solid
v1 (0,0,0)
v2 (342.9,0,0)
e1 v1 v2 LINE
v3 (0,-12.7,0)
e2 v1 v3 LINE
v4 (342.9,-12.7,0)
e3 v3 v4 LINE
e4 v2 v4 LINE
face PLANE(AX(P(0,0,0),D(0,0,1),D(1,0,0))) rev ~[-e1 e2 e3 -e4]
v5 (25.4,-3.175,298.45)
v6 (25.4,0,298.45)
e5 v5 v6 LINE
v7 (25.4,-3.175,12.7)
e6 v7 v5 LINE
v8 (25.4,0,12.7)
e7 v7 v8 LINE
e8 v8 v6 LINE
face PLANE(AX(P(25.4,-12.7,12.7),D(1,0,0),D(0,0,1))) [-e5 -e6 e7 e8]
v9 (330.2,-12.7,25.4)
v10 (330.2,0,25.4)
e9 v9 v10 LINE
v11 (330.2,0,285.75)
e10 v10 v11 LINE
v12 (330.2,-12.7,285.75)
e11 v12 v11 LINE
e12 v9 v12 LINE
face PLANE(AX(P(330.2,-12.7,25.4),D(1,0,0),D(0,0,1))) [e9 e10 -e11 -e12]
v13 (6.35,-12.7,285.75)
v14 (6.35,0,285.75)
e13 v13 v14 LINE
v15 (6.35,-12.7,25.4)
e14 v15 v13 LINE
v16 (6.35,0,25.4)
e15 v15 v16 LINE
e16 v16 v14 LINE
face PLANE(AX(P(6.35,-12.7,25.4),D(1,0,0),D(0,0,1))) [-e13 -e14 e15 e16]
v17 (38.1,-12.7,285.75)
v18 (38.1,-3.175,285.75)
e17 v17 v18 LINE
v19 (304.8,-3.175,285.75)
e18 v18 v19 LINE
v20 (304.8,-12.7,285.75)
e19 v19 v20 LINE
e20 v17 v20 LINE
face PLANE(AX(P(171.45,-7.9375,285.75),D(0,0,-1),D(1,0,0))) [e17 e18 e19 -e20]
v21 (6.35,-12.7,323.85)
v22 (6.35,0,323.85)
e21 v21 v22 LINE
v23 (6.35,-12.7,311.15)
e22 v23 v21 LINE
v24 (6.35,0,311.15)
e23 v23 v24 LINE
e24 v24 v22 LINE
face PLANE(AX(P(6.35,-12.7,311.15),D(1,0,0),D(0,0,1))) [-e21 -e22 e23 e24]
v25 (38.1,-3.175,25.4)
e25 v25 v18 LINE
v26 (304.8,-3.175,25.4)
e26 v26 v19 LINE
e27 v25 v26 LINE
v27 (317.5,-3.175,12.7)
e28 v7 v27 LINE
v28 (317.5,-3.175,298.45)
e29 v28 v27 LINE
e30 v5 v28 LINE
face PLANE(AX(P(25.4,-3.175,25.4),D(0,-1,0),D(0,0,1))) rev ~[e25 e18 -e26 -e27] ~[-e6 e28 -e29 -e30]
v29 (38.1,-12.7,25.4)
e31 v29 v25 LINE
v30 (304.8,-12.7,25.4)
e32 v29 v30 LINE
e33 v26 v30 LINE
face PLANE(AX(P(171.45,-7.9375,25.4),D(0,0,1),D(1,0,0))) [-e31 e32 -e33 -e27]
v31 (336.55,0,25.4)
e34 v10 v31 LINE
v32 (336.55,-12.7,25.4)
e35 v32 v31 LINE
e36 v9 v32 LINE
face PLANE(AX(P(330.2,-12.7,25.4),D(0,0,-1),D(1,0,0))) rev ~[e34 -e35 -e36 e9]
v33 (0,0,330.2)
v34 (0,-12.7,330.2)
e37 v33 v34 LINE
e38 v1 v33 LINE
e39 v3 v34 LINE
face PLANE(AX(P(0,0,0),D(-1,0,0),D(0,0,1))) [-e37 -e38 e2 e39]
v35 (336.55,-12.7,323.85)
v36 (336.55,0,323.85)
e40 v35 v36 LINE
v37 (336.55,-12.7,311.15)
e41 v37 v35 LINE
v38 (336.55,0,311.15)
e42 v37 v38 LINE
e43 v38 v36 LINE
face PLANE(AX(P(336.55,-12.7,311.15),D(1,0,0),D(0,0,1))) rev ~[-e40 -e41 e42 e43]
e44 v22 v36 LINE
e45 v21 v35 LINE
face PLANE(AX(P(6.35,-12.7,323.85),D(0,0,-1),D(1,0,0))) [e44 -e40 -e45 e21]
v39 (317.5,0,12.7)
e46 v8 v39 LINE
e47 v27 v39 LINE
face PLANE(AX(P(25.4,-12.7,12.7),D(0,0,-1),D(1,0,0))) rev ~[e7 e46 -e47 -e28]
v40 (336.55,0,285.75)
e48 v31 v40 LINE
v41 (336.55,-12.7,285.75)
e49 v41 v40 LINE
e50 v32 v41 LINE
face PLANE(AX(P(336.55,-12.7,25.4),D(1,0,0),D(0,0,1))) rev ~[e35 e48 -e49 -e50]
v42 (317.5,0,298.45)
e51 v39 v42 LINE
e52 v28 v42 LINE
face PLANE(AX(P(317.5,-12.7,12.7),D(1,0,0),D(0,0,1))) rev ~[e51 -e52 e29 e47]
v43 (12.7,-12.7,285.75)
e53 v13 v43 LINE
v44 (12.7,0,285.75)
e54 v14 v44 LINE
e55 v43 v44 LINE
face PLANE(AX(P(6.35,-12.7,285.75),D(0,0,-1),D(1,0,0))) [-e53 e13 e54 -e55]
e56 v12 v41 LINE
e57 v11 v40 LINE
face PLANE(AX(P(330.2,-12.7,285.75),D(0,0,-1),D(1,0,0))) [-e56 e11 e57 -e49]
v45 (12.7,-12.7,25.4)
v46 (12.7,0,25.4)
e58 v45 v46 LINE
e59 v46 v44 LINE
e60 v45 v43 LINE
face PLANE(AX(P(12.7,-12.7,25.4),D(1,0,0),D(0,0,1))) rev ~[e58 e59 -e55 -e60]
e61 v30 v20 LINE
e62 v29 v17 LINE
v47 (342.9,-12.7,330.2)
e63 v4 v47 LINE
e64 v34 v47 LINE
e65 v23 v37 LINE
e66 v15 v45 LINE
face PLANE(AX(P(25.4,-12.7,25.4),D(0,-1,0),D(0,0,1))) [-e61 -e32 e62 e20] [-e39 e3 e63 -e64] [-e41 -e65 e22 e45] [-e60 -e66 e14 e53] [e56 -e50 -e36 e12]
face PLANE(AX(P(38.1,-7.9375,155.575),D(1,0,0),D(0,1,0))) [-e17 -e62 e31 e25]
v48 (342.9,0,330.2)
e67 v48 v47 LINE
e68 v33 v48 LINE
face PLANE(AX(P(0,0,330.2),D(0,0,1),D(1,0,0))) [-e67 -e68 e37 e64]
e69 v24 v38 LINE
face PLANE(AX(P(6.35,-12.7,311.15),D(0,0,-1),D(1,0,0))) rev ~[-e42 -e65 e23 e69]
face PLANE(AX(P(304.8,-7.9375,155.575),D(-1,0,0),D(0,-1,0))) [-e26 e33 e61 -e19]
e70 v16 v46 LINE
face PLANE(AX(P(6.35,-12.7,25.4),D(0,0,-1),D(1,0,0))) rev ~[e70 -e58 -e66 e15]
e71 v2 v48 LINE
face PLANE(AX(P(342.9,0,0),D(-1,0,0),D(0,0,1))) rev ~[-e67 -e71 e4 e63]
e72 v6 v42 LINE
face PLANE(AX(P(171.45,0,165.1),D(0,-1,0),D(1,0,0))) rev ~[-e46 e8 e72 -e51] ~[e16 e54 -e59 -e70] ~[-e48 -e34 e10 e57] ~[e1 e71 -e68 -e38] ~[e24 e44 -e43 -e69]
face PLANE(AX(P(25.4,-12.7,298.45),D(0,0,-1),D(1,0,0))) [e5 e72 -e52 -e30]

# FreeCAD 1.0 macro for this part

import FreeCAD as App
import Part
import Sketcher

V = App.Vector
Q = App.Units.Quantity


def add_polygon(sketch, points):
    """Adds a closed chain of lines whose ends are joined by coincident constraints."""
    first, n = sketch.GeometryCount, len(points)
    for a, b in zip(points, points[1:] + points[:1]):
        sketch.addGeometry(Part.LineSegment(App.Vector(*a, 0), App.Vector(*b, 0)), False)
    for i in range(n):
        sketch.addConstraint(Sketcher.Constraint("Coincident", first + i, 2, first + (i + 1) % n, 1))

doc = App.newDocument("Part")
params = doc.addObject("Spreadsheet::Sheet", "Params")
for row, (alias, value) in enumerate([
    ("sketch1_height", "13 in"),
    ("sketch1_width", "13.5 in"),
    ("pad1_length", "0.5 in"),
    ("sketch2_width", "11.5 in"),
    ("sketch2_height", "11.25 in"),
    ("pocket1_length", "0.5 in"),
    ("sketch3_width", "13 in"),
    ("sketch3_height", "0.5 in"),
    ("sketch3_width2", "0.25 in"),
    ("sketch3_height2", "10.25 in"),
    ("pocket2_length", "0.5 in"),
    ("sketch4_width", "11.5 in"),
    ("sketch4_height", "0.375 in"),
    ("pad2_length", "0.5 in"),
    ("sketch5_width", "11.5 in"),
    ("sketch5_height", "0.375 in"),
    ("pad3_length", "0.5 in"),
    ("sketch6_height", "10.25 in"),
    ("sketch6_width", "0.375 in"),
    ("pad4_length", "0.5 in"),
    ("sketch7_height", "10.25 in"),
    ("sketch7_width", "0.375 in"),
    ("pad5_length", "0.5 in"),
], start=1):
    params.set(f"A{row}", alias)
    params.set(f"B{row}", "=" + value)
    params.setAlias(f"B{row}", alias)

body = doc.addObject("PartDesign::Body", "Body")

# Sketch on XZ plane
sketch1 = body.newObject("Sketcher::SketchObject", "Sketch")
sketch1.AttachmentSupport = (doc.getObject("XZ_Plane"), [""])
sketch1.MapMode = "FlatFace"
add_polygon(sketch1, [(0, 330), (0, 0), (343, 0), (343, 330)])  # lines 0-3
sketch1.addConstraint([
    Sketcher.Constraint("Vertical", 0),
    Sketcher.Constraint("Horizontal", 1),
    Sketcher.Constraint("Vertical", 2),
    Sketcher.Constraint("Horizontal", 3),
    Sketcher.Constraint("Coincident", 0, 2, -1, 1),
    Sketcher.Constraint("DistanceY", 0, 2, 0, 1, Q("13 in")),
    Sketcher.Constraint("DistanceX", 1, 1, 1, 2, Q("13.5 in")),
])
sketch1.setExpression("Constraints[9]", "Params.sketch1_height")
sketch1.setExpression("Constraints[10]", "Params.sketch1_width")
pad1 = body.newObject("PartDesign::Pad", "Pad")
pad1.Profile = sketch1
pad1.setExpression("Length", "Params.pad1_length")

# Sketch on XZ plane
sketch2 = body.newObject("Sketcher::SketchObject", "Sketch001")
sketch2.AttachmentSupport = (doc.getObject("XZ_Plane"), [""])
sketch2.MapMode = "FlatFace"
sketch2.AttachmentOffset = App.Placement(V(0, 0, 0.5 * 25.4), App.Rotation())
add_polygon(sketch2, [(25, 298), (25, 13), (318, 13), (318, 298)])  # lines 0-3
sketch2.addConstraint([
    Sketcher.Constraint("Vertical", 0),
    Sketcher.Constraint("Horizontal", 1),
    Sketcher.Constraint("Vertical", 2),
    Sketcher.Constraint("Horizontal", 3),
    Sketcher.Constraint("DistanceX", 1, 1, 1, 2, Q("11.5 in")),
    Sketcher.Constraint("DistanceX", -1, 1, 0, 2, Q("1 in")),
    Sketcher.Constraint("DistanceY", 0, 2, 0, 1, Q("11.25 in")),
    Sketcher.Constraint("DistanceY", -1, 1, 0, 2, Q("0.5 in")),
])
sketch2.setExpression("Constraints[8]", "Params.sketch2_width")
sketch2.setExpression("Constraints[10]", "Params.sketch2_height")
pocket1 = body.newObject("PartDesign::Pocket", "Pocket")
pocket1.Profile = sketch2
pocket1.setExpression("Length", "Params.pocket1_length")

# Sketch on XZ plane
sketch3 = body.newObject("Sketcher::SketchObject", "Sketch002")
sketch3.AttachmentSupport = (doc.getObject("XZ_Plane"), [""])
sketch3.MapMode = "FlatFace"
sketch3.AttachmentOffset = App.Placement(V(0, 0, 0.5 * 25.4), App.Rotation())
add_polygon(sketch3, [(6, 324), (6, 311), (337, 311), (337, 324)])  # lines 0-3
add_polygon(sketch3, [(6, 286), (6, 25), (13, 25), (13, 286)])  # lines 4-7
add_polygon(sketch3, [(330, 286), (330, 25), (337, 25), (337, 286)])  # lines 8-11
sketch3.addConstraint([
    Sketcher.Constraint("Vertical", 0),
    Sketcher.Constraint("Horizontal", 1),
    Sketcher.Constraint("Vertical", 2),
    Sketcher.Constraint("Horizontal", 3),
    Sketcher.Constraint("Vertical", 4),
    Sketcher.Constraint("Horizontal", 5),
    Sketcher.Constraint("Vertical", 6),
    Sketcher.Constraint("Horizontal", 7),
    Sketcher.Constraint("Vertical", 8),
    Sketcher.Constraint("Horizontal", 9),
    Sketcher.Constraint("Vertical", 10),
    Sketcher.Constraint("Horizontal", 11),
    Sketcher.Constraint("Horizontal", 5, 2, 8, 2),
    Sketcher.Constraint("Horizontal", 7, 2, 10, 2),
    Sketcher.Constraint("Vertical", 3, 2, 4, 2),
    Sketcher.Constraint("Vertical", 2, 2, 9, 2),
    Sketcher.Constraint("Equal", 7, 9),
    Sketcher.Constraint("DistanceX", 1, 1, 1, 2, Q("13 in")),
    Sketcher.Constraint("DistanceY", 0, 2, 0, 1, Q("0.5 in")),
    Sketcher.Constraint("DistanceY", -1, 1, 4, 2, Q("1 in")),
    Sketcher.Constraint("DistanceX", -1, 1, 8, 2, Q("13 in")),
    Sketcher.Constraint("DistanceY", 6, 2, 0, 2, Q("1 in")),
    Sketcher.Constraint("DistanceX", 5, 1, 5, 2, Q("0.25 in")),
    Sketcher.Constraint("DistanceY", 4, 2, 4, 1, Q("10.25 in")),
])
sketch3.setExpression("Constraints[29]", "Params.sketch3_width")
sketch3.setExpression("Constraints[30]", "Params.sketch3_height")
sketch3.setExpression("Constraints[34]", "Params.sketch3_width2")
sketch3.setExpression("Constraints[35]", "Params.sketch3_height2")
pocket2 = body.newObject("PartDesign::Pocket", "Pocket001")
pocket2.Profile = sketch3
pocket2.setExpression("Length", "Params.pocket2_length")

# Sketch on XY plane
sketch4 = body.newObject("Sketcher::SketchObject", "Sketch003")
sketch4.AttachmentSupport = (doc.getObject("XY_Plane"), [""])
sketch4.MapMode = "FlatFace"
sketch4.AttachmentOffset = App.Placement(V(0, 0, 0.5 * 25.4), App.Rotation())
add_polygon(sketch4, [(25, -3), (25, -13), (318, -13), (318, -3)])  # lines 0-3
sketch4.addConstraint([
    Sketcher.Constraint("Vertical", 0),
    Sketcher.Constraint("Horizontal", 1),
    Sketcher.Constraint("Vertical", 2),
    Sketcher.Constraint("Horizontal", 3),
    Sketcher.Constraint("DistanceX", 1, 1, 1, 2, Q("11.5 in")),
    Sketcher.Constraint("DistanceX", -1, 1, 0, 2, Q("1 in")),
    Sketcher.Constraint("DistanceY", 0, 2, -1, 1, Q("0.5 in")),
    Sketcher.Constraint("DistanceY", 0, 2, 0, 1, Q("0.375 in")),
])
sketch4.setExpression("Constraints[8]", "Params.sketch4_width")
sketch4.setExpression("Constraints[11]", "Params.sketch4_height")
pad2 = body.newObject("PartDesign::Pad", "Pad001")
pad2.Profile = sketch4
pad2.setExpression("Length", "Params.pad2_length")

# Sketch on XY plane
sketch5 = body.newObject("Sketcher::SketchObject", "Sketch004")
sketch5.AttachmentSupport = (doc.getObject("XY_Plane"), [""])
sketch5.MapMode = "FlatFace"
sketch5.AttachmentOffset = App.Placement(V(0, 0, 11.75 * 25.4), App.Rotation())
add_polygon(sketch5, [(25, -13), (25, -3), (318, -3), (318, -13)])  # lines 0-3
sketch5.addConstraint([
    Sketcher.Constraint("Vertical", 0),
    Sketcher.Constraint("Horizontal", 1),
    Sketcher.Constraint("Vertical", 2),
    Sketcher.Constraint("Horizontal", 3),
    Sketcher.Constraint("DistanceX", 1, 1, 1, 2, Q("11.5 in")),
    Sketcher.Constraint("DistanceX", -1, 1, 0, 2, Q("1 in")),
    Sketcher.Constraint("DistanceY", 2, 2, -1, 1, Q("0.5 in")),
    Sketcher.Constraint("DistanceY", 0, 1, 0, 2, Q("0.375 in")),
])
sketch5.setExpression("Constraints[8]", "Params.sketch5_width")
sketch5.setExpression("Constraints[11]", "Params.sketch5_height")
pad3 = body.newObject("PartDesign::Pad", "Pad002")
pad3.Profile = sketch5
pad3.setExpression("Length", "Params.pad3_length")
pad3.Reversed = True

# Sketch on YZ plane
sketch6 = body.newObject("Sketcher::SketchObject", "Sketch005")
sketch6.AttachmentSupport = (doc.getObject("YZ_Plane"), [""])
sketch6.MapMode = "FlatFace"
sketch6.AttachmentOffset = App.Placement(V(0, 0, 12.5 * 25.4), App.Rotation())
add_polygon(sketch6, [(-3, 286), (-3, 25), (-13, 25), (-13, 286)])  # lines 0-3
sketch6.addConstraint([
    Sketcher.Constraint("Vertical", 0),
    Sketcher.Constraint("Horizontal", 1),
    Sketcher.Constraint("Vertical", 2),
    Sketcher.Constraint("Horizontal", 3),
    Sketcher.Constraint("DistanceY", -1, 1, 0, 2, Q("1 in")),
    Sketcher.Constraint("DistanceY", 0, 2, 0, 1, Q("10.25 in")),
    Sketcher.Constraint("DistanceX", 1, 2, -1, 1, Q("0.5 in")),
    Sketcher.Constraint("DistanceX", 1, 2, 1, 1, Q("0.375 in")),
])
sketch6.setExpression("Constraints[9]", "Params.sketch6_height")
sketch6.setExpression("Constraints[11]", "Params.sketch6_width")
pad4 = body.newObject("PartDesign::Pad", "Pad003")
pad4.Profile = sketch6
pad4.setExpression("Length", "Params.pad4_length")
pad4.Reversed = True

# Sketch on YZ plane
sketch7 = body.newObject("Sketcher::SketchObject", "Sketch006")
sketch7.AttachmentSupport = (doc.getObject("YZ_Plane"), [""])
sketch7.MapMode = "FlatFace"
sketch7.AttachmentOffset = App.Placement(V(0, 0, 1 * 25.4), App.Rotation())
add_polygon(sketch7, [(-13, 286), (-13, 25), (-3, 25), (-3, 286)])  # lines 0-3
sketch7.addConstraint([
    Sketcher.Constraint("Vertical", 0),
    Sketcher.Constraint("Horizontal", 1),
    Sketcher.Constraint("Vertical", 2),
    Sketcher.Constraint("Horizontal", 3),
    Sketcher.Constraint("DistanceY", -1, 1, 0, 2, Q("1 in")),
    Sketcher.Constraint("DistanceY", 0, 2, 0, 1, Q("10.25 in")),
    Sketcher.Constraint("DistanceX", 0, 2, -1, 1, Q("0.5 in")),
    Sketcher.Constraint("DistanceX", 1, 1, 1, 2, Q("0.375 in")),
])
sketch7.setExpression("Constraints[9]", "Params.sketch7_height")
sketch7.setExpression("Constraints[11]", "Params.sketch7_width")
pad5 = body.newObject("PartDesign::Pad", "Pad004")
pad5.Profile = sketch7
pad5.setExpression("Length", "Params.pad5_length")

doc.recompute()
